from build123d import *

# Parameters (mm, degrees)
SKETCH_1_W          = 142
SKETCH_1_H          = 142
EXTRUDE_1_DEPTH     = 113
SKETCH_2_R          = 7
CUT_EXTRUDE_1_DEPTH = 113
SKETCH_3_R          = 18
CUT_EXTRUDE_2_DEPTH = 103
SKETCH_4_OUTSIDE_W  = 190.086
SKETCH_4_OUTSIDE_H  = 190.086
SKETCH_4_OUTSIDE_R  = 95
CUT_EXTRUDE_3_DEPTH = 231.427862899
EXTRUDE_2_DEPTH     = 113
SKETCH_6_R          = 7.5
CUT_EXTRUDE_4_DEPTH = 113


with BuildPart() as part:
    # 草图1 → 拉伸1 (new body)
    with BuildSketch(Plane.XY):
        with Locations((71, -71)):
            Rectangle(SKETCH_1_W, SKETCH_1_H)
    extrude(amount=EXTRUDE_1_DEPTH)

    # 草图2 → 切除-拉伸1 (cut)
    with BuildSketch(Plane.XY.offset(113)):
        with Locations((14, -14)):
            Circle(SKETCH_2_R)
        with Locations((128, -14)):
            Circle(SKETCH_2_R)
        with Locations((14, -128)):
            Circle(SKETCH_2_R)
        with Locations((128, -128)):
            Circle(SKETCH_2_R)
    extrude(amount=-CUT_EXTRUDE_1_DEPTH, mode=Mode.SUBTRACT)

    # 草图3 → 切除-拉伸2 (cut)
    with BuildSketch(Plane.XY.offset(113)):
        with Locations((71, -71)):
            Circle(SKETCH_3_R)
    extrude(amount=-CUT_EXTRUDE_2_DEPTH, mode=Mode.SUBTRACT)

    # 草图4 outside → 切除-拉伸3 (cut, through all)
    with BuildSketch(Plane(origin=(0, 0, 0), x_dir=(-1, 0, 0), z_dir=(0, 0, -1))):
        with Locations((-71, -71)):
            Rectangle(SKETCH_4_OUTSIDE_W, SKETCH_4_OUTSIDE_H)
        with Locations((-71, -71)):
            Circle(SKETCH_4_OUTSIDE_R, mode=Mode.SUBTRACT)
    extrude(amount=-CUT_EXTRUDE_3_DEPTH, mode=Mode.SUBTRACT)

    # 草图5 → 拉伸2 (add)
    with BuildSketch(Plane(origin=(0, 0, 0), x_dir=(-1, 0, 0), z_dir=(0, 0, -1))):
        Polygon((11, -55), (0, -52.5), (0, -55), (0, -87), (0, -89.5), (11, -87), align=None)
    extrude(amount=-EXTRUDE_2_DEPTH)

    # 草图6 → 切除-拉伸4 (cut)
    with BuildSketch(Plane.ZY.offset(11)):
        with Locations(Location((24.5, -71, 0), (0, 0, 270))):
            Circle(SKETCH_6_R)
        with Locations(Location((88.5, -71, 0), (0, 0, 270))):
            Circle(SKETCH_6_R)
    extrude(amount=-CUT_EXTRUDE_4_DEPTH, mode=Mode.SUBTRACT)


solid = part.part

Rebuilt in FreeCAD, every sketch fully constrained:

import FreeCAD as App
import Part
import Sketcher
Q = App.Units.Quantity


def add_polygon(sketch, points):
    """Adds a closed chain of lines whose ends are joined by coincident constraints."""
    first, n = sketch.GeometryCount, len(points)
    for a, b in zip(points, points[1:] + points[:1]):
        sketch.addGeometry(Part.LineSegment(App.Vector(*a, 0), App.Vector(*b, 0)), False)
    for i in range(n):
        sketch.addConstraint(Sketcher.Constraint("Coincident", first + i, 2, first + (i + 1) % n, 1))

doc = App.newDocument("Part")
body = doc.addObject("PartDesign::Body", "Body")

# Sketch on XY plane
sketch1 = doc.addObject("Sketcher::SketchObject", "Sketch")
body.addObject(sketch1)
sketch1.AttachmentSupport = (doc.XY_Plane, [""])
sketch1.MapMode = "FlatFace"
add_polygon(sketch1, [(0, 0), (0, -142), (142, -142), (142, 0)])  # lines 0-3
sketch1.addConstraint(Sketcher.Constraint("Vertical", 0))
sketch1.addConstraint(Sketcher.Constraint("Horizontal", 1))
sketch1.addConstraint(Sketcher.Constraint("Vertical", 2))
sketch1.addConstraint(Sketcher.Constraint("Horizontal", 3))
sketch1.addConstraint(Sketcher.Constraint("Coincident", 3, 2, -1, 1))
sketch1.addConstraint(Sketcher.Constraint("Equal", 3, 0))
sketch1.addConstraint(Sketcher.Constraint("DistanceX", 1, 1, 1, 2, Q("142 mm")))
pad1 = doc.addObject("PartDesign::Pad", "Pad")
body.addObject(pad1)
pad1.Profile = sketch1
pad1.Length = 113

# Sketch on XY plane
sketch2 = doc.addObject("Sketcher::SketchObject", "Sketch001")
body.addObject(sketch2)
sketch2.AttachmentSupport = (doc.XY_Plane, [""])
sketch2.MapMode = "FlatFace"
sketch2.AttachmentOffset = App.Placement(App.Vector(0, 0, 113), App.Rotation())
sketch2.addGeometry(Part.Circle(App.Vector(14, -14, 0), App.Vector(0, 0, 1), 7), False)
sketch2.addGeometry(Part.Circle(App.Vector(128, -14, 0), App.Vector(0, 0, 1), 7), False)
sketch2.addGeometry(Part.Circle(App.Vector(14, -128, 0), App.Vector(0, 0, 1), 7), False)
sketch2.addGeometry(Part.Circle(App.Vector(128, -128, 0), App.Vector(0, 0, 1), 7), False)
sketch2.addConstraint(Sketcher.Constraint("Equal", 0, 1))
sketch2.addConstraint(Sketcher.Constraint("Equal", 1, 2))
sketch2.addConstraint(Sketcher.Constraint("Equal", 2, 3))
sketch2.addConstraint(Sketcher.Constraint("Horizontal", 0, 3, 1, 3))
sketch2.addConstraint(Sketcher.Constraint("Horizontal", 2, 3, 3, 3))
sketch2.addConstraint(Sketcher.Constraint("Vertical", 0, 3, 2, 3))
sketch2.addConstraint(Sketcher.Constraint("Vertical", 1, 3, 3, 3))
sketch2.addConstraint(Sketcher.Constraint("Diameter", 0, Q("14 mm")))
sketch2.addConstraint(Sketcher.Constraint("DistanceX", -1, 1, 0, 3, Q("14 mm")))
sketch2.addConstraint(Sketcher.Constraint("DistanceY", 0, 3, -1, 1, Q("14 mm")))
sketch2.addConstraint(Sketcher.Constraint("DistanceX", -1, 1, 1, 3, Q("128 mm")))
sketch2.addConstraint(Sketcher.Constraint("DistanceY", 2, 3, -1, 1, Q("128 mm")))
pocket1 = doc.addObject("PartDesign::Pocket", "Pocket")
body.addObject(pocket1)
pocket1.Profile = sketch2
pocket1.Length = 113

# Sketch on XY plane
sketch3 = doc.addObject("Sketcher::SketchObject", "Sketch002")
body.addObject(sketch3)
sketch3.AttachmentSupport = (doc.XY_Plane, [""])
sketch3.MapMode = "FlatFace"
sketch3.AttachmentOffset = App.Placement(App.Vector(0, 0, 113), App.Rotation())
sketch3.addGeometry(Part.Circle(App.Vector(71, -71, 0), App.Vector(0, 0, 1), 18), False)
sketch3.addConstraint(Sketcher.Constraint("Diameter", 0, Q("36 mm")))
sketch3.addConstraint(Sketcher.Constraint("DistanceX", -1, 1, 0, 3, Q("71 mm")))
sketch3.addConstraint(Sketcher.Constraint("DistanceY", 0, 3, -1, 1, Q("71 mm")))
pocket2 = doc.addObject("PartDesign::Pocket", "Pocket001")
body.addObject(pocket2)
pocket2.Profile = sketch3
pocket2.Length = 103

# Sketch on XY plane
sketch4 = doc.addObject("Sketcher::SketchObject", "Sketch003")
body.addObject(sketch4)
sketch4.AttachmentSupport = (doc.XY_Plane, [""])
sketch4.MapMode = "FlatFace"
add_polygon(sketch4, [(166, 24), (166, -166), (-24, -166), (-24, 24)])  # lines 0-3
sketch4.addGeometry(Part.Circle(App.Vector(71, -71, 0), App.Vector(0, 0, 1), 95), False)  # 4
sketch4.addConstraint(Sketcher.Constraint("Vertical", 0))
sketch4.addConstraint(Sketcher.Constraint("Horizontal", 1))
sketch4.addConstraint(Sketcher.Constraint("Vertical", 2))
sketch4.addConstraint(Sketcher.Constraint("Horizontal", 3))
sketch4.addConstraint(Sketcher.Constraint("Equal", 3, 0))
sketch4.addConstraint(Sketcher.Constraint("Diameter", 4, Q("190 mm")))
sketch4.addConstraint(Sketcher.Constraint("DistanceX", -1, 1, 4, 3, Q("71 mm")))
sketch4.addConstraint(Sketcher.Constraint("DistanceY", 4, 3, -1, 1, Q("71 mm")))
sketch4.addConstraint(Sketcher.Constraint("DistanceX", 1, 2, 1, 1, Q("190.086 mm")))
sketch4.addConstraint(Sketcher.Constraint("DistanceX", -1, 1, 0, 2, Q("166.043 mm")))
sketch4.addConstraint(Sketcher.Constraint("DistanceY", 0, 2, -1, 1, Q("166.043 mm")))
pocket3 = doc.addObject("PartDesign::Pocket", "Pocket002")
body.addObject(pocket3)
pocket3.Profile = sketch4
pocket3.Type = "ThroughAll"
pocket3.Reversed = True

# Sketch on XY plane
sketch5 = doc.addObject("Sketcher::SketchObject", "Sketch004")
body.addObject(sketch5)
sketch5.AttachmentSupport = (doc.XY_Plane, [""])
sketch5.MapMode = "FlatFace"
add_polygon(sketch5, [(-11, -55), (0, -52), (0, -90), (-11, -87)])  # lines 0-3
sketch5.addConstraint(Sketcher.Constraint("Vertical", 1))
sketch5.addConstraint(Sketcher.Constraint("Vertical", 3))
sketch5.addConstraint(Sketcher.Constraint("PointOnObject", 0, 2, -2))
sketch5.addConstraint(Sketcher.Constraint("Equal", 0, 2))
sketch5.addConstraint(Sketcher.Constraint("DistanceY", 1, 2, 1, 1, Q("37 mm")))
sketch5.addConstraint(Sketcher.Constraint("DistanceY", 3, 1, 3, 2, Q("32 mm")))
sketch5.addConstraint(Sketcher.Constraint("DistanceX", 2, 2, -1, 1, Q("11 mm")))
sketch5.addConstraint(Sketcher.Constraint("DistanceY", 2, 2, -1, 1, Q("87 mm")))
pad2 = doc.addObject("PartDesign::Pad", "Pad001")
body.addObject(pad2)
pad2.Profile = sketch5
pad2.Length = 113

# Sketch on YZ plane
sketch6 = doc.addObject("Sketcher::SketchObject", "Sketch005")
body.addObject(sketch6)
sketch6.AttachmentSupport = (doc.YZ_Plane, [""])
sketch6.MapMode = "FlatFace"
sketch6.AttachmentOffset = App.Placement(App.Vector(0, 0, -11), App.Rotation())
sketch6.addGeometry(Part.Circle(App.Vector(-71, 24, 0), App.Vector(0, 0, 1), 8), False)
sketch6.addGeometry(Part.Circle(App.Vector(-71, 88, 0), App.Vector(0, 0, 1), 8), False)
sketch6.addConstraint(Sketcher.Constraint("Equal", 0, 1))
sketch6.addConstraint(Sketcher.Constraint("Vertical", 0, 3, 1, 3))
sketch6.addConstraint(Sketcher.Constraint("Diameter", 0, Q("15 mm")))
sketch6.addConstraint(Sketcher.Constraint("DistanceX", 0, 3, -1, 1, Q("71 mm")))
sketch6.addConstraint(Sketcher.Constraint("DistanceY", 0, 3, 1, 3, Q("64 mm")))
sketch6.addConstraint(Sketcher.Constraint("DistanceY", -1, 1, 0, 3, Q("24.5 mm")))
pocket4 = doc.addObject("PartDesign::Pocket", "Pocket003")
body.addObject(pocket4)
pocket4.Profile = sketch6
pocket4.Length = 113
pocket4.Reversed = True

doc.recompute()
